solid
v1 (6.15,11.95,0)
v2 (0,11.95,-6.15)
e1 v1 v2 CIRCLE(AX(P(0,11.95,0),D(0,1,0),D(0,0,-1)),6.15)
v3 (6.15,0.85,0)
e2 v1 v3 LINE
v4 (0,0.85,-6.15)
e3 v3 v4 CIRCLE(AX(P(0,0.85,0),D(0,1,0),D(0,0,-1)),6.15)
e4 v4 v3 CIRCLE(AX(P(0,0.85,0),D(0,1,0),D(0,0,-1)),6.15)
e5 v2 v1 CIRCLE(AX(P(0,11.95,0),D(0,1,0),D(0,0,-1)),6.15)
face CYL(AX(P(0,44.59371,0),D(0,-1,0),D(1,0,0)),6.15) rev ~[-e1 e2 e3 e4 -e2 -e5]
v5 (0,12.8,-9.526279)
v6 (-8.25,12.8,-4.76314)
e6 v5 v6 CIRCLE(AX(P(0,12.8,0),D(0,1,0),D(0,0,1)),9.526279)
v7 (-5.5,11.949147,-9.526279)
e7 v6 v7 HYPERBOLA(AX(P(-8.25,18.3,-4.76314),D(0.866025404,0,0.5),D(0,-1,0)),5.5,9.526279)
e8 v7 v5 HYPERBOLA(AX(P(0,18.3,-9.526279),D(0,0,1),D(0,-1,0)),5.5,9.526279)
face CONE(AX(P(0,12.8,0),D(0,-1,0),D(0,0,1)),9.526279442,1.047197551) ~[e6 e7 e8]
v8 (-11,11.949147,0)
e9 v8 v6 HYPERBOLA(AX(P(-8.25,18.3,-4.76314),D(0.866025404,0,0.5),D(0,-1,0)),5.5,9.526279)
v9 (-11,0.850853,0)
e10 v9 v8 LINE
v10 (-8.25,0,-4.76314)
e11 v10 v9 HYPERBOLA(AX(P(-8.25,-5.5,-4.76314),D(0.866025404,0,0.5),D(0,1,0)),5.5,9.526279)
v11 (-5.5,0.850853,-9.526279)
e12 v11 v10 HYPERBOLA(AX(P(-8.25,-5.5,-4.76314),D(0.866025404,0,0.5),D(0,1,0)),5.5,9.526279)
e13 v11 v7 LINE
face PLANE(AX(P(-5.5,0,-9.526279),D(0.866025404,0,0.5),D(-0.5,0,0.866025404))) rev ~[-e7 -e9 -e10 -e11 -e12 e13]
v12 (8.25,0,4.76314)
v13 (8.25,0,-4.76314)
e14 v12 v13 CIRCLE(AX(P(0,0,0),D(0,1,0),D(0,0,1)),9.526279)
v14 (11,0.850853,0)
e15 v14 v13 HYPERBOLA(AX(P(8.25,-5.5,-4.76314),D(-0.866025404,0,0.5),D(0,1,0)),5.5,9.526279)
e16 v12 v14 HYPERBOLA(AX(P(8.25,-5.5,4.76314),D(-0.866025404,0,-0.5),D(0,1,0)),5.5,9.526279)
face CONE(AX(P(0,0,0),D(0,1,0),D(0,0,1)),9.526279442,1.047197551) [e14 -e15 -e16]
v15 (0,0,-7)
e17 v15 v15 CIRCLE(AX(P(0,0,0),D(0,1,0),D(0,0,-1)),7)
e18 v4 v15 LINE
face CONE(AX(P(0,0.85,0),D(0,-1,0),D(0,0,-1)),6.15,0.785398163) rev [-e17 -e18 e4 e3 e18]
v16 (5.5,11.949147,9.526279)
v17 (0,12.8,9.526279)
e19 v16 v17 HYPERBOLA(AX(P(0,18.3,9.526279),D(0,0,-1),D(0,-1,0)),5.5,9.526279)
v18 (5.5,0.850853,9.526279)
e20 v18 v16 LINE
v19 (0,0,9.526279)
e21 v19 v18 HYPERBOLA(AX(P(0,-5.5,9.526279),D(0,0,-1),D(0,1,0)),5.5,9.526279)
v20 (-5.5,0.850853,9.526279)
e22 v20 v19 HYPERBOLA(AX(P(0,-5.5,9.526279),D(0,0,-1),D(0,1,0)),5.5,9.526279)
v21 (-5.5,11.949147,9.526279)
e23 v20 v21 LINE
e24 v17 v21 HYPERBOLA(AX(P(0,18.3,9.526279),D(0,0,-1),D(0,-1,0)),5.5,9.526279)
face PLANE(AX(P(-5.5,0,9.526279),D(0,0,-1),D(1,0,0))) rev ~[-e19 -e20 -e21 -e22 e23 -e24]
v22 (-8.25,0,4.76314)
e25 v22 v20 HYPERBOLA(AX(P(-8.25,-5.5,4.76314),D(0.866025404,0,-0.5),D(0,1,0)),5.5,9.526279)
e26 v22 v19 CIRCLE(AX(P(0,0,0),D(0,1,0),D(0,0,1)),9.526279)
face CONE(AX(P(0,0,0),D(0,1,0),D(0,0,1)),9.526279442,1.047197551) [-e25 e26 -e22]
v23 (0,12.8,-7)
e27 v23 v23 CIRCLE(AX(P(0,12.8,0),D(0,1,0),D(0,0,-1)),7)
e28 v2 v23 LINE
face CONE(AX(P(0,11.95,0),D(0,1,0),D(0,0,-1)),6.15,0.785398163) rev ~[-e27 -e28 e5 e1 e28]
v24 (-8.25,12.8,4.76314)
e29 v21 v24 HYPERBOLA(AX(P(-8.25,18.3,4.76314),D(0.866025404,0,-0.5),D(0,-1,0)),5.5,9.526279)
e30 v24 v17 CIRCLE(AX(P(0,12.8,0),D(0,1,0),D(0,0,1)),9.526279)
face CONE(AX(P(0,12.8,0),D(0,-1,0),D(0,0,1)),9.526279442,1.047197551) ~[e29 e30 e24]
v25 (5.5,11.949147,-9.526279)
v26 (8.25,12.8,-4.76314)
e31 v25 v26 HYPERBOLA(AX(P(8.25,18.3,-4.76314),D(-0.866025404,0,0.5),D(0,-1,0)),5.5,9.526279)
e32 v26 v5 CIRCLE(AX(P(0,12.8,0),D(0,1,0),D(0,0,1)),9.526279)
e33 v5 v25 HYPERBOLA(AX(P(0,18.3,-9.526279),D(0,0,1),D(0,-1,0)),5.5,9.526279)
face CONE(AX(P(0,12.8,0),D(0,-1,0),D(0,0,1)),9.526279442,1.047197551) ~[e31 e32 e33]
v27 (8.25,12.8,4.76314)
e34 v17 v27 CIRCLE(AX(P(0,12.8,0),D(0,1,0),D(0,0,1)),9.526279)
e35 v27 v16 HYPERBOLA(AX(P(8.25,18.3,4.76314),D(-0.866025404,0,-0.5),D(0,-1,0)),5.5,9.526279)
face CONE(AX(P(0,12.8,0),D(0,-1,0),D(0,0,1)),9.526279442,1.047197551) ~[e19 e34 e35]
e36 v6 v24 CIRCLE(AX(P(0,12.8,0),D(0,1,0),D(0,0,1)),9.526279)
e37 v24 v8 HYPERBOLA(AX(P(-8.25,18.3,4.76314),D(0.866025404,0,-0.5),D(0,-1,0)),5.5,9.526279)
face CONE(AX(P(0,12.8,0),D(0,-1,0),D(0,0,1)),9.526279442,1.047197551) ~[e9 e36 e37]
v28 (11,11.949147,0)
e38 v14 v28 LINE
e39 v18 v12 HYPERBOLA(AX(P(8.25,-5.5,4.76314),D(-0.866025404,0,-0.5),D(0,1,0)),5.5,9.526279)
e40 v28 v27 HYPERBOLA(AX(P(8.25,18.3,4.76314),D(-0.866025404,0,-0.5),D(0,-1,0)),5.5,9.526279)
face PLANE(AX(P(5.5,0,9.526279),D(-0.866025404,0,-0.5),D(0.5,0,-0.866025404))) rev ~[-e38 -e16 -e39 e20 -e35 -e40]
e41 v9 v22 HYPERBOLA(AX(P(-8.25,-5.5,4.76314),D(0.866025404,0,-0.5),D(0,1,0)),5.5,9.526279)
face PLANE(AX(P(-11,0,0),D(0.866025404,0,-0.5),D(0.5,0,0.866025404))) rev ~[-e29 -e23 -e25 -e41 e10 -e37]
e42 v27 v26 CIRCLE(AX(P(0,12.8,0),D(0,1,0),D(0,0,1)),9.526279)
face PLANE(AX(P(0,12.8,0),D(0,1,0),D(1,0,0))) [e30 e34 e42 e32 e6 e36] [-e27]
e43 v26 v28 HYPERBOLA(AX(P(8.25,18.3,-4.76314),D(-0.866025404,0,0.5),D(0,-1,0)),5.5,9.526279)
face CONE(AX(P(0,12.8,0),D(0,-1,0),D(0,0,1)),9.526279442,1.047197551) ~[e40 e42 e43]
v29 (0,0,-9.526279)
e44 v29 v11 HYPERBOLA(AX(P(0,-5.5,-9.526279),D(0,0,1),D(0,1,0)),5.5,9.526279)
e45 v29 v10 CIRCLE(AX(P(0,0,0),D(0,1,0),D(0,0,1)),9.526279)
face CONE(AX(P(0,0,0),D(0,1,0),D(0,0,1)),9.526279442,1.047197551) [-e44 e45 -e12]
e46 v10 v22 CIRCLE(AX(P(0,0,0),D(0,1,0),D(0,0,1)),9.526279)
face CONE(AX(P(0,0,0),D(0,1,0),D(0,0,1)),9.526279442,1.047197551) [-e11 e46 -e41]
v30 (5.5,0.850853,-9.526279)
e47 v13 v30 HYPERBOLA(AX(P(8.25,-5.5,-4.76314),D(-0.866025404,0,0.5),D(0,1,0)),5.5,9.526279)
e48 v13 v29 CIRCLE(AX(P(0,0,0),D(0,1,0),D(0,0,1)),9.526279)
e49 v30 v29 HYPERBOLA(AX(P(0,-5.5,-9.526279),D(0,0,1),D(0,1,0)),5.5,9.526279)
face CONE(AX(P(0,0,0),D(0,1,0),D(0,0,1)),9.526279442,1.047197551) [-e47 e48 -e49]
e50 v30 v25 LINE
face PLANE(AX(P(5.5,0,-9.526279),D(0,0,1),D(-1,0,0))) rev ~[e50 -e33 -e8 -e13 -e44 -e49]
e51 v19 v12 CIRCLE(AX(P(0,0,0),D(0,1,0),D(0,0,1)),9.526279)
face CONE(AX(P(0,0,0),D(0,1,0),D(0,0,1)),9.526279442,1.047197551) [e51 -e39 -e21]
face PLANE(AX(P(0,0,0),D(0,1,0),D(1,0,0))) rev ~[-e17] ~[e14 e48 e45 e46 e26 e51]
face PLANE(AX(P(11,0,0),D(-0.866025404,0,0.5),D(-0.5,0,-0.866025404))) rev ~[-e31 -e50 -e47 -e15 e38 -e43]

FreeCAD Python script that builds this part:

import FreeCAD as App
import Part
import Sketcher
Q = App.Units.Quantity


def add_polygon(sketch, points):
    """Adds a closed chain of lines whose ends are joined by coincident constraints."""
    first, n = sketch.GeometryCount, len(points)
    for a, b in zip(points, points[1:] + points[:1]):
        sketch.addGeometry(Part.LineSegment(App.Vector(*a, 0), App.Vector(*b, 0)), False)
    for i in range(n):
        sketch.addConstraint(Sketcher.Constraint("Coincident", first + i, 2, first + (i + 1) % n, 1))

doc = App.newDocument("Part")
body = doc.addObject("PartDesign::Body", "Body")

sketch1 = body.newObject("Sketcher::SketchObject", "Sketch")
sketch1.AttachmentSupport = (doc.getObject("XZ_Plane"), [""])
sketch1.MapMode = "FlatFace"
add_polygon(sketch1, [(6, -10), (-6, -10), (-11, 0), (-6, 10), (6, 10), (11, 0)])
sketch1.addConstraint([
    Sketcher.Constraint("Horizontal", 0),
    Sketcher.Constraint("Horizontal", 3),
    Sketcher.Constraint("Symmetric", 0, 2, 3, 2, -1, 1),
    Sketcher.Constraint("Symmetric", 1, 2, 4, 2, -1, 1),
    Sketcher.Constraint("PointOnObject", 1, 2, -1),
    Sketcher.Constraint("Parallel", 2, 5),
    Sketcher.Constraint("Vertical", 0, 2, 2, 2),
    Sketcher.Constraint("DistanceX", 0, 2, 0, 1, 11.0),
    Sketcher.Constraint("Angle", 1, Q("120 deg")),
    Sketcher.Constraint("Distance", 1, 11.0),
])
pad1 = body.newObject("PartDesign::Pad", "Pad")
pad1.Profile = sketch1
pad1.Length = 12.8
pad1.Reversed = True

sketch2 = body.newObject("Sketcher::SketchObject", "Sketch001")
sketch2.AttachmentSupport = (doc.getObject("XZ_Plane"), [""])
sketch2.MapMode = "FlatFace"
sketch2.AttachmentOffset = App.Placement(App.Vector(0, 0, -12.8), App.Rotation())
sketch2.addGeometry(Part.Circle(App.Vector(0, 0, 0), App.Vector(0, 0, 1), 6), False)
sketch2.addConstraint([
    Sketcher.Constraint("Coincident", 0, 3, -1, 1),
    Sketcher.Constraint("Diameter", 0, 12.3),
])
doc.recompute()
hole = body.newObject("PartDesign::Hole", "Hole")
hole.Profile = sketch2
hole.ThreadType = "None"
hole.Diameter = 12.3
hole.DepthType = "ThroughAll"
hole.Reversed = True

sketch3 = body.newObject("Sketcher::SketchObject", "Sketch002")
sketch3.AttachmentSupport = (doc.getObject("YZ_Plane"), [""])
sketch3.MapMode = "FlatFace"
add_polygon(sketch3, [(11.7, 11.5), (12.8, 9.5), (12.8, 11.5)])
add_polygon(sketch3, [(0, 11.5), (0, 9.5), (1.1, 11.5)])
sketch3.addConstraint([
    Sketcher.Constraint("Vertical", 1),
    Sketcher.Constraint("Horizontal", 2),
    Sketcher.Constraint("Vertical", 3),
    Sketcher.Constraint("Horizontal", 5),
    Sketcher.Constraint("PointOnObject", 3, 2, -2),
    Sketcher.Constraint("Horizontal", 0, 2, 3, 2),
    Sketcher.Constraint("Horizontal", 2, 2, 4, 2),
    Sketcher.Constraint("Equal", 2, 5),
    Sketcher.Constraint("Angle", 0, Q("-60 deg")),
    Sketcher.Constraint("DistanceX", -1, 1, 0, 2, 12.8),
    Sketcher.Constraint("DistanceY", -1, 1, 1, 2, 11.5),
    Sketcher.Constraint("DistanceX", 2, 2, 2, 1, 1.139528),
])
groove = body.newObject("PartDesign::Groove", "Groove")
groove.Profile = sketch3
groove.ReferenceAxis = (sketch3, ["H_Axis"])
groove.Angle = 360

sketch4 = body.newObject("Sketcher::SketchObject", "Sketch003")
sketch4.AttachmentSupport = (doc.getObject("YZ_Plane"), [""])
sketch4.MapMode = "FlatFace"
add_polygon(sketch4, [(12.8, 6.2), (12.8, 7), (11.9, 6.2)])
add_polygon(sketch4, [(0.8, 6.2), (0, 7), (0, 6.2)])
sketch4.addConstraint([
    Sketcher.Constraint("Vertical", 0),
    Sketcher.Constraint("Horizontal", 2),
    Sketcher.Constraint("Vertical", 4),
    Sketcher.Constraint("Horizontal", 5),
    Sketcher.Constraint("PointOnObject", 3, 2, -2),
    Sketcher.Constraint("Perpendicular", 1, 3),
    Sketcher.Constraint("Horizontal", 0, 2, 3, 2),
    Sketcher.Constraint("Horizontal", 2, 2, 4, 2),
    Sketcher.Constraint("Equal", 2, 5),
    Sketcher.Constraint("DistanceY", -1, 1, 0, 2, 7.0),
    Sketcher.Constraint("DistanceX", 2, 1, 2, 2, 0.85),
    Sketcher.Constraint("DistanceX", -1, 1, 0, 2, 12.8),
])
groove2 = body.newObject("PartDesign::Groove", "Groove001")
groove2.Profile = sketch4
groove2.ReferenceAxis = (sketch4, ["H_Axis"])
groove2.Angle = 360

doc.recompute()
